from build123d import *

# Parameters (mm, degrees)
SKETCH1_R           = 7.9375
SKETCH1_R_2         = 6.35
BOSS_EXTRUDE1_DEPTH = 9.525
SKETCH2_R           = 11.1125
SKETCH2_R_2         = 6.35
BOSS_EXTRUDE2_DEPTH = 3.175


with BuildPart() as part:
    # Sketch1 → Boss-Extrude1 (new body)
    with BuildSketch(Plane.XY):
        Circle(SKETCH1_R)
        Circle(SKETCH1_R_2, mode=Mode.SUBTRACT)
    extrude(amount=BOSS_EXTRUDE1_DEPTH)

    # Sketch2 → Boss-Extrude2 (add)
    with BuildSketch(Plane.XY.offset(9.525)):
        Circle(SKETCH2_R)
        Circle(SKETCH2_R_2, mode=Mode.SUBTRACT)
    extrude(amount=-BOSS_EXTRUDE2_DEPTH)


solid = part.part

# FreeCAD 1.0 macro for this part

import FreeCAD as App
import Part
import Sketcher

V = App.Vector
Q = App.Units.Quantity

doc = App.newDocument("Part")
body = doc.addObject("PartDesign::Body", "Body")

# Sketch on XY plane
sketch1 = body.newObject("Sketcher::SketchObject", "Sketch")
sketch1.AttachmentSupport = (doc.getObject("XY_Plane"), [""])
sketch1.MapMode = "FlatFace"
sketch1.addGeometry([
    Part.Circle(V(0, 0, 0), V(0, 0, 1), 7.9375),
    Part.Circle(V(0, 0, 0), V(0, 0, 1), 6.35),
], False)
sketch1.addConstraint([
    Sketcher.Constraint("Coincident", 0, 3, -1, 1),
    Sketcher.Constraint("Coincident", 1, 3, -1, 1),
    Sketcher.Constraint("Diameter", 1, Q("0.5 in")),
    Sketcher.Constraint("Diameter", 0, Q("0.625 in")),
])
pad1 = body.newObject("PartDesign::Pad", "Pad")
pad1.Profile = sketch1
pad1.Length = Q("0.375 in")

# Sketch on XY plane
sketch2 = body.newObject("Sketcher::SketchObject", "Sketch001")
sketch2.AttachmentSupport = (doc.getObject("XY_Plane"), [""])
sketch2.MapMode = "FlatFace"
sketch2.AttachmentOffset = App.Placement(V(0, 0, 0.375 * 25.4), App.Rotation())
sketch2.addGeometry([
    Part.Circle(V(0, 0, 0), V(0, 0, 1), 11.1125),
    Part.Circle(V(0, 0, 0), V(0, 0, 1), 6.35),
], False)
sketch2.addConstraint([
    Sketcher.Constraint("Coincident", 0, 3, -1, 1),
    Sketcher.Constraint("Coincident", 1, 3, -1, 1),
    Sketcher.Constraint("Diameter", 1, Q("0.5 in")),
    Sketcher.Constraint("Diameter", 0, Q("0.875 in")),
])
pad2 = body.newObject("PartDesign::Pad", "Pad001")
pad2.Profile = sketch2
pad2.Length = Q("0.125 in")
pad2.Reversed = True

doc.recompute()
